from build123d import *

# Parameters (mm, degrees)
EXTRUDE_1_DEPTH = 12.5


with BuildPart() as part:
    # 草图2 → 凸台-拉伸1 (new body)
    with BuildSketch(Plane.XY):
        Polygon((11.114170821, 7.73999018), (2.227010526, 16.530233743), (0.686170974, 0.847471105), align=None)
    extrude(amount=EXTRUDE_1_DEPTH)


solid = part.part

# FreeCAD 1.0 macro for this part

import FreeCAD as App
import Part
import Sketcher

doc = App.newDocument("Part")
body = doc.addObject("PartDesign::Body", "Body")

# Sketch on XY plane
sketch1 = doc.addObject("Sketcher::SketchObject", "Sketch")
body.addObject(sketch1)
sketch1.AttachmentSupport = (doc.XY_Plane, [""])
sketch1.MapMode = "FlatFace"
sketch1.addGeometry(Part.LineSegment(App.Vector(11, 8, 0), App.Vector(2, 17, 0)), False)
sketch1.addGeometry(Part.LineSegment(App.Vector(2, 17, 0), App.Vector(1, 1, 0)), False)
sketch1.addGeometry(Part.LineSegment(App.Vector(1, 1, 0), App.Vector(11, 8, 0)), False)
sketch1.addConstraint(Sketcher.Constraint("Coincident", 0, 2, 1, 1))
sketch1.addConstraint(Sketcher.Constraint("Coincident", 1, 2, 2, 1))
sketch1.addConstraint(Sketcher.Constraint("Coincident", 2, 2, 0, 1))
sketch1.addConstraint(Sketcher.Constraint("Equal", 0, 2))
sketch1.addConstraint(Sketcher.Constraint("Distance", 0, 12.5))
sketch1.addConstraint(Sketcher.Constraint("DistanceX", 1, 2, 2, 2, 10.428))
sketch1.addConstraint(Sketcher.Constraint("DistanceX", -1, 1, 0, 2, 2.227011))
sketch1.addConstraint(Sketcher.Constraint("DistanceX", -1, 1, 1, 2, 0.686171))
sketch1.addConstraint(Sketcher.Constraint("DistanceY", -1, 1, 1, 2, 0.847471))
pad1 = doc.addObject("PartDesign::Pad", "Pad")
body.addObject(pad1)
pad1.Profile = sketch1
pad1.Length = 12.5

doc.recompute()
